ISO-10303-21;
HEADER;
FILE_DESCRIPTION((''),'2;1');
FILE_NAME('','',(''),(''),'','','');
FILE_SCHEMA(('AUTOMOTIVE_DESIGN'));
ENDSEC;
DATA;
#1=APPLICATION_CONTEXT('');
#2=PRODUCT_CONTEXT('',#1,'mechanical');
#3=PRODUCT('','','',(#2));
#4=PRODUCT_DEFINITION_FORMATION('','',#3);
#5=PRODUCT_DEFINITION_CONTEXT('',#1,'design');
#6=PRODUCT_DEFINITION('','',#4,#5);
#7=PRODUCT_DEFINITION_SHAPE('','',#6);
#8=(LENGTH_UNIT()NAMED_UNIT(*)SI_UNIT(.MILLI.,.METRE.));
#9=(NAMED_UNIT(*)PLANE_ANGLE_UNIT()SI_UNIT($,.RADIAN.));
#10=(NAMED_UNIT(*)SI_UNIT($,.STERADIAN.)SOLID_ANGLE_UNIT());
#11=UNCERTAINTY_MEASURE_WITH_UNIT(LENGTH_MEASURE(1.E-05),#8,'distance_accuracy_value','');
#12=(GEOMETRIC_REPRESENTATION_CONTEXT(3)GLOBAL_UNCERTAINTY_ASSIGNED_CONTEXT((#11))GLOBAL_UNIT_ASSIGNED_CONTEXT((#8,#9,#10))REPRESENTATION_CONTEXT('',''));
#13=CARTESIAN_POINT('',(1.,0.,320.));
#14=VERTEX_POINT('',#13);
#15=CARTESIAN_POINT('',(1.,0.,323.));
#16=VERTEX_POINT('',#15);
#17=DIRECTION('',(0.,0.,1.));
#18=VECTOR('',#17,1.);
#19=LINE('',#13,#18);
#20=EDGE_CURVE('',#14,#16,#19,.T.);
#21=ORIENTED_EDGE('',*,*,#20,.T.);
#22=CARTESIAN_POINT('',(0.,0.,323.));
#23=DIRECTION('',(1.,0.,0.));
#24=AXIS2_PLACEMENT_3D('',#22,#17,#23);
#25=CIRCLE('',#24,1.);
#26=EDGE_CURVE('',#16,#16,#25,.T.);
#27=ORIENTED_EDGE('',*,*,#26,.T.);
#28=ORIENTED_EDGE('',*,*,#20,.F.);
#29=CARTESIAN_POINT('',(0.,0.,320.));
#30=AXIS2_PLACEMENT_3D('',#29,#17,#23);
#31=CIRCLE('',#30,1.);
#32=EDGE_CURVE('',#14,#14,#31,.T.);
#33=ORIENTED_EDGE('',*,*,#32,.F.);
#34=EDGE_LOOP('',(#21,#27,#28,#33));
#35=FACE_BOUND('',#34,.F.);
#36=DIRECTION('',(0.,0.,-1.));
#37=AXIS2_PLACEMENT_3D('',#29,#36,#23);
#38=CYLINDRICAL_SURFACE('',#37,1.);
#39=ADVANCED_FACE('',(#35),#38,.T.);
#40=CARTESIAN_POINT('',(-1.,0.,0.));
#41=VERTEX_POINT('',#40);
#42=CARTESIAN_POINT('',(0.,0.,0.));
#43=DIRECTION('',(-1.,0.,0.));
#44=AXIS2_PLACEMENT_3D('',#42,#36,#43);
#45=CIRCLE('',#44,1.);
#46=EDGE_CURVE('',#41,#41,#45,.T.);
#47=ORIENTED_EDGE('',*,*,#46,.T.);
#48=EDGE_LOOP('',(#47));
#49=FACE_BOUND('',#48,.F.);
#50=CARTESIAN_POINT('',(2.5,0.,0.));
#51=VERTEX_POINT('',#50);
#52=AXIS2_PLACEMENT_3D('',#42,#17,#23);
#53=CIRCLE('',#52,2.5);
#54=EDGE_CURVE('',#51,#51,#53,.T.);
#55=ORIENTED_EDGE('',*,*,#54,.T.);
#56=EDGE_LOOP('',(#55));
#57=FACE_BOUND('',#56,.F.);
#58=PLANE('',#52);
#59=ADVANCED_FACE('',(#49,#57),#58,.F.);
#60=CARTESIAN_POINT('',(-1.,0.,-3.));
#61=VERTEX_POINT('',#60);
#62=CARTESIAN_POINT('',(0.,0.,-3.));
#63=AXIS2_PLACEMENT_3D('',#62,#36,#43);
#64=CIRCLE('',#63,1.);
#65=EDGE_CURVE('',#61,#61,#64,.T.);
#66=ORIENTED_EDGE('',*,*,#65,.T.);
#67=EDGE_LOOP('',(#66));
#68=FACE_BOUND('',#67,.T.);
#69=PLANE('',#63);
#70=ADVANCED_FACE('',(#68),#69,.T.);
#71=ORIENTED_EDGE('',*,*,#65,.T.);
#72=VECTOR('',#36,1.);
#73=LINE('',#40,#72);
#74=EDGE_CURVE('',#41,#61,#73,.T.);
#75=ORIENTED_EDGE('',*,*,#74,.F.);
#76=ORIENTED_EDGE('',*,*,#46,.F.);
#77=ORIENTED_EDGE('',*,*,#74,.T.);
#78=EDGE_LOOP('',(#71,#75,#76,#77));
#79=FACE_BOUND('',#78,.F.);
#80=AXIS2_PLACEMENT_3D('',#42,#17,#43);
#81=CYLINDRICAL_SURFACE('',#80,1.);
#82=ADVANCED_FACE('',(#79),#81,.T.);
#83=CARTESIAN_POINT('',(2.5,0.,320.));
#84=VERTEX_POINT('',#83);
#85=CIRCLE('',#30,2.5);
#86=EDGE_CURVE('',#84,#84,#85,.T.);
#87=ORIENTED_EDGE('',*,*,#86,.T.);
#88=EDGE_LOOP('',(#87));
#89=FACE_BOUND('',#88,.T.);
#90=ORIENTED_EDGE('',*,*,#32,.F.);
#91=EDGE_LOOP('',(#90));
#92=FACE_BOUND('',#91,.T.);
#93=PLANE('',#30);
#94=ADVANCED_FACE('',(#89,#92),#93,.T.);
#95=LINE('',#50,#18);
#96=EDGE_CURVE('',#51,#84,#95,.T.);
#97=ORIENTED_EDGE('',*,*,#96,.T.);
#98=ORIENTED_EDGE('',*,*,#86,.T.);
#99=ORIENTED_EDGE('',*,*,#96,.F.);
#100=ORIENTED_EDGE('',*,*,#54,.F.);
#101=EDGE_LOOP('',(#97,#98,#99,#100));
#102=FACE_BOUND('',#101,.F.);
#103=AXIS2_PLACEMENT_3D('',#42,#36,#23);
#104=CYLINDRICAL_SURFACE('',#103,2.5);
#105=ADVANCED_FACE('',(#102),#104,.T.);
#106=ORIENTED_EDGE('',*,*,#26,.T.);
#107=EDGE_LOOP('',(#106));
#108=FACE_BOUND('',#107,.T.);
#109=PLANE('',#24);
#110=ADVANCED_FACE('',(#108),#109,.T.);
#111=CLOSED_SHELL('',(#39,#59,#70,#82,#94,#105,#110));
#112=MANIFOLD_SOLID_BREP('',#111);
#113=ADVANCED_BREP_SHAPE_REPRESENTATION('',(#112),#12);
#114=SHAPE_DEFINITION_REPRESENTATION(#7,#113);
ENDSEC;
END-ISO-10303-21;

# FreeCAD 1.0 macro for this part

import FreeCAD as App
import Part
import Sketcher
from FreeCAD import Vector

doc = App.newDocument("Part")
body = doc.addObject("PartDesign::Body", "Body")

sketch1 = body.newObject("Sketcher::SketchObject", "Sketch")
sketch1.AttachmentSupport = (doc.getObject("XY_Plane"), [""])
sketch1.MapMode = "FlatFace"
sketch1.addGeometry(Part.Circle(Vector(0, 0, 0), Vector(0, 0, 1), 2.5), False)
sketch1.addConstraint([
    Sketcher.Constraint("Coincident", 0, 3, -1, 1),
    Sketcher.Constraint("Diameter", 0, 5.0),
])
pad1 = body.newObject("PartDesign::Pad", "Pad")
pad1.Profile = sketch1
pad1.Length = 320

sketch2 = body.newObject("Sketcher::SketchObject", "Sketch001")
sketch2.AttachmentSupport = (doc.getObject("XY_Plane"), [""])
sketch2.MapMode = "FlatFace"
sketch2.AttachmentOffset = App.Placement(Vector(0, 0, 320), App.Rotation())
sketch2.addGeometry(Part.Circle(Vector(0, 0, 0), Vector(0, 0, 1), 1), False)
sketch2.addConstraint([
    Sketcher.Constraint("Coincident", 0, 3, -1, 1),
    Sketcher.Constraint("Diameter", 0, 2.0),
])
pad2 = body.newObject("PartDesign::Pad", "Pad001")
pad2.Profile = sketch2
pad2.Length = 3

sketch3 = body.newObject("Sketcher::SketchObject", "Sketch002")
sketch3.AttachmentSupport = (doc.getObject("XY_Plane"), [""])
sketch3.MapMode = "FlatFace"
sketch3.addGeometry(Part.Circle(Vector(0, 0, 0), Vector(0, 0, 1), 1), False)
sketch3.addConstraint([
    Sketcher.Constraint("Coincident", 0, 3, -1, 1),
    Sketcher.Constraint("Diameter", 0, 2.0),
])
pad3 = body.newObject("PartDesign::Pad", "Pad002")
pad3.Profile = sketch3
pad3.Length = 3
pad3.Reversed = True

doc.recompute()
